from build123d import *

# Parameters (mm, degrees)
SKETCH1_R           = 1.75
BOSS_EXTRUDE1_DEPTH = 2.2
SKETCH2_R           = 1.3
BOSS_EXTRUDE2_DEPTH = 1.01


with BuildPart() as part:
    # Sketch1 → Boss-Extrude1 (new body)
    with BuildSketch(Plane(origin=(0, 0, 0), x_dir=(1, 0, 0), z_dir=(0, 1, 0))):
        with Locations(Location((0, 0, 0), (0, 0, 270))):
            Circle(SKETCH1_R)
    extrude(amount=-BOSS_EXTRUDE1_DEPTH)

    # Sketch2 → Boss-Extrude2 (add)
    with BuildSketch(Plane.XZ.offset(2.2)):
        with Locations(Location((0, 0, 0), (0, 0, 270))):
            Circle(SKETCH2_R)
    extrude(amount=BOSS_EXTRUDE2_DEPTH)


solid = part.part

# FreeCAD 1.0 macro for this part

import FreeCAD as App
import Part
import Sketcher

V = App.Vector
Q = App.Units.Quantity

doc = App.newDocument("Part")
body = doc.addObject("PartDesign::Body", "Body")

sketch1 = body.newObject("Sketcher::SketchObject", "Sketch")
sketch1.AttachmentSupport = (doc.getObject("XZ_Plane"), [""])
sketch1.MapMode = "FlatFace"
sketch1.addGeometry(Part.Circle(V(0, 0, 0), V(0, 0, 1), 1.75), False)
sketch1.addConstraint(Sketcher.Constraint("Coincident", 0, 3, -1, 1))
sketch1.addConstraint(Sketcher.Constraint("Diameter", 0, Q("3.5 mm")))
pad1 = body.newObject("PartDesign::Pad", "Pad")
pad1.Profile = sketch1
pad1.Length = 2.2

sketch2 = body.newObject("Sketcher::SketchObject", "Sketch001")
sketch2.AttachmentSupport = (doc.getObject("XZ_Plane"), [""])
sketch2.MapMode = "FlatFace"
sketch2.AttachmentOffset = App.Placement(V(0, 0, 2.2), App.Rotation())
sketch2.addGeometry(Part.Circle(V(0, 0, 0), V(0, 0, 1), 1.3), False)
sketch2.addConstraint(Sketcher.Constraint("Coincident", 0, 3, -1, 1))
sketch2.addConstraint(Sketcher.Constraint("Diameter", 0, Q("2.6 mm")))
pad2 = body.newObject("PartDesign::Pad", "Pad001")
pad2.Profile = sketch2
pad2.Length = 1.01

doc.recompute()
